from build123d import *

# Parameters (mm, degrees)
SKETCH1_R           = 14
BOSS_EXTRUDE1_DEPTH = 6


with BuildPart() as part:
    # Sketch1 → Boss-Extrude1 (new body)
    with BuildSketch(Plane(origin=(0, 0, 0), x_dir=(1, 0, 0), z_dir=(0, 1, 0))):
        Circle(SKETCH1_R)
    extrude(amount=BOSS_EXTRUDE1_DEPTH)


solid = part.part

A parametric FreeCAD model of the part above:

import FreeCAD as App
import Part
import Sketcher
from FreeCAD import Vector

doc = App.newDocument("Part")
body = doc.addObject("PartDesign::Body", "Body")

sketch1 = body.newObject("Sketcher::SketchObject", "Sketch")
sketch1.AttachmentSupport = (doc.getObject("XZ_Plane"), [""])
sketch1.MapMode = "FlatFace"
sketch1.addGeometry(Part.Circle(Vector(0, 0, 0), Vector(0, 0, 1), 14), False)
sketch1.addConstraint([
    Sketcher.Constraint("Coincident", 0, 3, -1, 1),
    Sketcher.Constraint("Diameter", 0, 28.0),
])
pad1 = body.newObject("PartDesign::Pad", "Pad")
pad1.Profile = sketch1
pad1.Length = 6
pad1.Reversed = True

doc.recompute()
